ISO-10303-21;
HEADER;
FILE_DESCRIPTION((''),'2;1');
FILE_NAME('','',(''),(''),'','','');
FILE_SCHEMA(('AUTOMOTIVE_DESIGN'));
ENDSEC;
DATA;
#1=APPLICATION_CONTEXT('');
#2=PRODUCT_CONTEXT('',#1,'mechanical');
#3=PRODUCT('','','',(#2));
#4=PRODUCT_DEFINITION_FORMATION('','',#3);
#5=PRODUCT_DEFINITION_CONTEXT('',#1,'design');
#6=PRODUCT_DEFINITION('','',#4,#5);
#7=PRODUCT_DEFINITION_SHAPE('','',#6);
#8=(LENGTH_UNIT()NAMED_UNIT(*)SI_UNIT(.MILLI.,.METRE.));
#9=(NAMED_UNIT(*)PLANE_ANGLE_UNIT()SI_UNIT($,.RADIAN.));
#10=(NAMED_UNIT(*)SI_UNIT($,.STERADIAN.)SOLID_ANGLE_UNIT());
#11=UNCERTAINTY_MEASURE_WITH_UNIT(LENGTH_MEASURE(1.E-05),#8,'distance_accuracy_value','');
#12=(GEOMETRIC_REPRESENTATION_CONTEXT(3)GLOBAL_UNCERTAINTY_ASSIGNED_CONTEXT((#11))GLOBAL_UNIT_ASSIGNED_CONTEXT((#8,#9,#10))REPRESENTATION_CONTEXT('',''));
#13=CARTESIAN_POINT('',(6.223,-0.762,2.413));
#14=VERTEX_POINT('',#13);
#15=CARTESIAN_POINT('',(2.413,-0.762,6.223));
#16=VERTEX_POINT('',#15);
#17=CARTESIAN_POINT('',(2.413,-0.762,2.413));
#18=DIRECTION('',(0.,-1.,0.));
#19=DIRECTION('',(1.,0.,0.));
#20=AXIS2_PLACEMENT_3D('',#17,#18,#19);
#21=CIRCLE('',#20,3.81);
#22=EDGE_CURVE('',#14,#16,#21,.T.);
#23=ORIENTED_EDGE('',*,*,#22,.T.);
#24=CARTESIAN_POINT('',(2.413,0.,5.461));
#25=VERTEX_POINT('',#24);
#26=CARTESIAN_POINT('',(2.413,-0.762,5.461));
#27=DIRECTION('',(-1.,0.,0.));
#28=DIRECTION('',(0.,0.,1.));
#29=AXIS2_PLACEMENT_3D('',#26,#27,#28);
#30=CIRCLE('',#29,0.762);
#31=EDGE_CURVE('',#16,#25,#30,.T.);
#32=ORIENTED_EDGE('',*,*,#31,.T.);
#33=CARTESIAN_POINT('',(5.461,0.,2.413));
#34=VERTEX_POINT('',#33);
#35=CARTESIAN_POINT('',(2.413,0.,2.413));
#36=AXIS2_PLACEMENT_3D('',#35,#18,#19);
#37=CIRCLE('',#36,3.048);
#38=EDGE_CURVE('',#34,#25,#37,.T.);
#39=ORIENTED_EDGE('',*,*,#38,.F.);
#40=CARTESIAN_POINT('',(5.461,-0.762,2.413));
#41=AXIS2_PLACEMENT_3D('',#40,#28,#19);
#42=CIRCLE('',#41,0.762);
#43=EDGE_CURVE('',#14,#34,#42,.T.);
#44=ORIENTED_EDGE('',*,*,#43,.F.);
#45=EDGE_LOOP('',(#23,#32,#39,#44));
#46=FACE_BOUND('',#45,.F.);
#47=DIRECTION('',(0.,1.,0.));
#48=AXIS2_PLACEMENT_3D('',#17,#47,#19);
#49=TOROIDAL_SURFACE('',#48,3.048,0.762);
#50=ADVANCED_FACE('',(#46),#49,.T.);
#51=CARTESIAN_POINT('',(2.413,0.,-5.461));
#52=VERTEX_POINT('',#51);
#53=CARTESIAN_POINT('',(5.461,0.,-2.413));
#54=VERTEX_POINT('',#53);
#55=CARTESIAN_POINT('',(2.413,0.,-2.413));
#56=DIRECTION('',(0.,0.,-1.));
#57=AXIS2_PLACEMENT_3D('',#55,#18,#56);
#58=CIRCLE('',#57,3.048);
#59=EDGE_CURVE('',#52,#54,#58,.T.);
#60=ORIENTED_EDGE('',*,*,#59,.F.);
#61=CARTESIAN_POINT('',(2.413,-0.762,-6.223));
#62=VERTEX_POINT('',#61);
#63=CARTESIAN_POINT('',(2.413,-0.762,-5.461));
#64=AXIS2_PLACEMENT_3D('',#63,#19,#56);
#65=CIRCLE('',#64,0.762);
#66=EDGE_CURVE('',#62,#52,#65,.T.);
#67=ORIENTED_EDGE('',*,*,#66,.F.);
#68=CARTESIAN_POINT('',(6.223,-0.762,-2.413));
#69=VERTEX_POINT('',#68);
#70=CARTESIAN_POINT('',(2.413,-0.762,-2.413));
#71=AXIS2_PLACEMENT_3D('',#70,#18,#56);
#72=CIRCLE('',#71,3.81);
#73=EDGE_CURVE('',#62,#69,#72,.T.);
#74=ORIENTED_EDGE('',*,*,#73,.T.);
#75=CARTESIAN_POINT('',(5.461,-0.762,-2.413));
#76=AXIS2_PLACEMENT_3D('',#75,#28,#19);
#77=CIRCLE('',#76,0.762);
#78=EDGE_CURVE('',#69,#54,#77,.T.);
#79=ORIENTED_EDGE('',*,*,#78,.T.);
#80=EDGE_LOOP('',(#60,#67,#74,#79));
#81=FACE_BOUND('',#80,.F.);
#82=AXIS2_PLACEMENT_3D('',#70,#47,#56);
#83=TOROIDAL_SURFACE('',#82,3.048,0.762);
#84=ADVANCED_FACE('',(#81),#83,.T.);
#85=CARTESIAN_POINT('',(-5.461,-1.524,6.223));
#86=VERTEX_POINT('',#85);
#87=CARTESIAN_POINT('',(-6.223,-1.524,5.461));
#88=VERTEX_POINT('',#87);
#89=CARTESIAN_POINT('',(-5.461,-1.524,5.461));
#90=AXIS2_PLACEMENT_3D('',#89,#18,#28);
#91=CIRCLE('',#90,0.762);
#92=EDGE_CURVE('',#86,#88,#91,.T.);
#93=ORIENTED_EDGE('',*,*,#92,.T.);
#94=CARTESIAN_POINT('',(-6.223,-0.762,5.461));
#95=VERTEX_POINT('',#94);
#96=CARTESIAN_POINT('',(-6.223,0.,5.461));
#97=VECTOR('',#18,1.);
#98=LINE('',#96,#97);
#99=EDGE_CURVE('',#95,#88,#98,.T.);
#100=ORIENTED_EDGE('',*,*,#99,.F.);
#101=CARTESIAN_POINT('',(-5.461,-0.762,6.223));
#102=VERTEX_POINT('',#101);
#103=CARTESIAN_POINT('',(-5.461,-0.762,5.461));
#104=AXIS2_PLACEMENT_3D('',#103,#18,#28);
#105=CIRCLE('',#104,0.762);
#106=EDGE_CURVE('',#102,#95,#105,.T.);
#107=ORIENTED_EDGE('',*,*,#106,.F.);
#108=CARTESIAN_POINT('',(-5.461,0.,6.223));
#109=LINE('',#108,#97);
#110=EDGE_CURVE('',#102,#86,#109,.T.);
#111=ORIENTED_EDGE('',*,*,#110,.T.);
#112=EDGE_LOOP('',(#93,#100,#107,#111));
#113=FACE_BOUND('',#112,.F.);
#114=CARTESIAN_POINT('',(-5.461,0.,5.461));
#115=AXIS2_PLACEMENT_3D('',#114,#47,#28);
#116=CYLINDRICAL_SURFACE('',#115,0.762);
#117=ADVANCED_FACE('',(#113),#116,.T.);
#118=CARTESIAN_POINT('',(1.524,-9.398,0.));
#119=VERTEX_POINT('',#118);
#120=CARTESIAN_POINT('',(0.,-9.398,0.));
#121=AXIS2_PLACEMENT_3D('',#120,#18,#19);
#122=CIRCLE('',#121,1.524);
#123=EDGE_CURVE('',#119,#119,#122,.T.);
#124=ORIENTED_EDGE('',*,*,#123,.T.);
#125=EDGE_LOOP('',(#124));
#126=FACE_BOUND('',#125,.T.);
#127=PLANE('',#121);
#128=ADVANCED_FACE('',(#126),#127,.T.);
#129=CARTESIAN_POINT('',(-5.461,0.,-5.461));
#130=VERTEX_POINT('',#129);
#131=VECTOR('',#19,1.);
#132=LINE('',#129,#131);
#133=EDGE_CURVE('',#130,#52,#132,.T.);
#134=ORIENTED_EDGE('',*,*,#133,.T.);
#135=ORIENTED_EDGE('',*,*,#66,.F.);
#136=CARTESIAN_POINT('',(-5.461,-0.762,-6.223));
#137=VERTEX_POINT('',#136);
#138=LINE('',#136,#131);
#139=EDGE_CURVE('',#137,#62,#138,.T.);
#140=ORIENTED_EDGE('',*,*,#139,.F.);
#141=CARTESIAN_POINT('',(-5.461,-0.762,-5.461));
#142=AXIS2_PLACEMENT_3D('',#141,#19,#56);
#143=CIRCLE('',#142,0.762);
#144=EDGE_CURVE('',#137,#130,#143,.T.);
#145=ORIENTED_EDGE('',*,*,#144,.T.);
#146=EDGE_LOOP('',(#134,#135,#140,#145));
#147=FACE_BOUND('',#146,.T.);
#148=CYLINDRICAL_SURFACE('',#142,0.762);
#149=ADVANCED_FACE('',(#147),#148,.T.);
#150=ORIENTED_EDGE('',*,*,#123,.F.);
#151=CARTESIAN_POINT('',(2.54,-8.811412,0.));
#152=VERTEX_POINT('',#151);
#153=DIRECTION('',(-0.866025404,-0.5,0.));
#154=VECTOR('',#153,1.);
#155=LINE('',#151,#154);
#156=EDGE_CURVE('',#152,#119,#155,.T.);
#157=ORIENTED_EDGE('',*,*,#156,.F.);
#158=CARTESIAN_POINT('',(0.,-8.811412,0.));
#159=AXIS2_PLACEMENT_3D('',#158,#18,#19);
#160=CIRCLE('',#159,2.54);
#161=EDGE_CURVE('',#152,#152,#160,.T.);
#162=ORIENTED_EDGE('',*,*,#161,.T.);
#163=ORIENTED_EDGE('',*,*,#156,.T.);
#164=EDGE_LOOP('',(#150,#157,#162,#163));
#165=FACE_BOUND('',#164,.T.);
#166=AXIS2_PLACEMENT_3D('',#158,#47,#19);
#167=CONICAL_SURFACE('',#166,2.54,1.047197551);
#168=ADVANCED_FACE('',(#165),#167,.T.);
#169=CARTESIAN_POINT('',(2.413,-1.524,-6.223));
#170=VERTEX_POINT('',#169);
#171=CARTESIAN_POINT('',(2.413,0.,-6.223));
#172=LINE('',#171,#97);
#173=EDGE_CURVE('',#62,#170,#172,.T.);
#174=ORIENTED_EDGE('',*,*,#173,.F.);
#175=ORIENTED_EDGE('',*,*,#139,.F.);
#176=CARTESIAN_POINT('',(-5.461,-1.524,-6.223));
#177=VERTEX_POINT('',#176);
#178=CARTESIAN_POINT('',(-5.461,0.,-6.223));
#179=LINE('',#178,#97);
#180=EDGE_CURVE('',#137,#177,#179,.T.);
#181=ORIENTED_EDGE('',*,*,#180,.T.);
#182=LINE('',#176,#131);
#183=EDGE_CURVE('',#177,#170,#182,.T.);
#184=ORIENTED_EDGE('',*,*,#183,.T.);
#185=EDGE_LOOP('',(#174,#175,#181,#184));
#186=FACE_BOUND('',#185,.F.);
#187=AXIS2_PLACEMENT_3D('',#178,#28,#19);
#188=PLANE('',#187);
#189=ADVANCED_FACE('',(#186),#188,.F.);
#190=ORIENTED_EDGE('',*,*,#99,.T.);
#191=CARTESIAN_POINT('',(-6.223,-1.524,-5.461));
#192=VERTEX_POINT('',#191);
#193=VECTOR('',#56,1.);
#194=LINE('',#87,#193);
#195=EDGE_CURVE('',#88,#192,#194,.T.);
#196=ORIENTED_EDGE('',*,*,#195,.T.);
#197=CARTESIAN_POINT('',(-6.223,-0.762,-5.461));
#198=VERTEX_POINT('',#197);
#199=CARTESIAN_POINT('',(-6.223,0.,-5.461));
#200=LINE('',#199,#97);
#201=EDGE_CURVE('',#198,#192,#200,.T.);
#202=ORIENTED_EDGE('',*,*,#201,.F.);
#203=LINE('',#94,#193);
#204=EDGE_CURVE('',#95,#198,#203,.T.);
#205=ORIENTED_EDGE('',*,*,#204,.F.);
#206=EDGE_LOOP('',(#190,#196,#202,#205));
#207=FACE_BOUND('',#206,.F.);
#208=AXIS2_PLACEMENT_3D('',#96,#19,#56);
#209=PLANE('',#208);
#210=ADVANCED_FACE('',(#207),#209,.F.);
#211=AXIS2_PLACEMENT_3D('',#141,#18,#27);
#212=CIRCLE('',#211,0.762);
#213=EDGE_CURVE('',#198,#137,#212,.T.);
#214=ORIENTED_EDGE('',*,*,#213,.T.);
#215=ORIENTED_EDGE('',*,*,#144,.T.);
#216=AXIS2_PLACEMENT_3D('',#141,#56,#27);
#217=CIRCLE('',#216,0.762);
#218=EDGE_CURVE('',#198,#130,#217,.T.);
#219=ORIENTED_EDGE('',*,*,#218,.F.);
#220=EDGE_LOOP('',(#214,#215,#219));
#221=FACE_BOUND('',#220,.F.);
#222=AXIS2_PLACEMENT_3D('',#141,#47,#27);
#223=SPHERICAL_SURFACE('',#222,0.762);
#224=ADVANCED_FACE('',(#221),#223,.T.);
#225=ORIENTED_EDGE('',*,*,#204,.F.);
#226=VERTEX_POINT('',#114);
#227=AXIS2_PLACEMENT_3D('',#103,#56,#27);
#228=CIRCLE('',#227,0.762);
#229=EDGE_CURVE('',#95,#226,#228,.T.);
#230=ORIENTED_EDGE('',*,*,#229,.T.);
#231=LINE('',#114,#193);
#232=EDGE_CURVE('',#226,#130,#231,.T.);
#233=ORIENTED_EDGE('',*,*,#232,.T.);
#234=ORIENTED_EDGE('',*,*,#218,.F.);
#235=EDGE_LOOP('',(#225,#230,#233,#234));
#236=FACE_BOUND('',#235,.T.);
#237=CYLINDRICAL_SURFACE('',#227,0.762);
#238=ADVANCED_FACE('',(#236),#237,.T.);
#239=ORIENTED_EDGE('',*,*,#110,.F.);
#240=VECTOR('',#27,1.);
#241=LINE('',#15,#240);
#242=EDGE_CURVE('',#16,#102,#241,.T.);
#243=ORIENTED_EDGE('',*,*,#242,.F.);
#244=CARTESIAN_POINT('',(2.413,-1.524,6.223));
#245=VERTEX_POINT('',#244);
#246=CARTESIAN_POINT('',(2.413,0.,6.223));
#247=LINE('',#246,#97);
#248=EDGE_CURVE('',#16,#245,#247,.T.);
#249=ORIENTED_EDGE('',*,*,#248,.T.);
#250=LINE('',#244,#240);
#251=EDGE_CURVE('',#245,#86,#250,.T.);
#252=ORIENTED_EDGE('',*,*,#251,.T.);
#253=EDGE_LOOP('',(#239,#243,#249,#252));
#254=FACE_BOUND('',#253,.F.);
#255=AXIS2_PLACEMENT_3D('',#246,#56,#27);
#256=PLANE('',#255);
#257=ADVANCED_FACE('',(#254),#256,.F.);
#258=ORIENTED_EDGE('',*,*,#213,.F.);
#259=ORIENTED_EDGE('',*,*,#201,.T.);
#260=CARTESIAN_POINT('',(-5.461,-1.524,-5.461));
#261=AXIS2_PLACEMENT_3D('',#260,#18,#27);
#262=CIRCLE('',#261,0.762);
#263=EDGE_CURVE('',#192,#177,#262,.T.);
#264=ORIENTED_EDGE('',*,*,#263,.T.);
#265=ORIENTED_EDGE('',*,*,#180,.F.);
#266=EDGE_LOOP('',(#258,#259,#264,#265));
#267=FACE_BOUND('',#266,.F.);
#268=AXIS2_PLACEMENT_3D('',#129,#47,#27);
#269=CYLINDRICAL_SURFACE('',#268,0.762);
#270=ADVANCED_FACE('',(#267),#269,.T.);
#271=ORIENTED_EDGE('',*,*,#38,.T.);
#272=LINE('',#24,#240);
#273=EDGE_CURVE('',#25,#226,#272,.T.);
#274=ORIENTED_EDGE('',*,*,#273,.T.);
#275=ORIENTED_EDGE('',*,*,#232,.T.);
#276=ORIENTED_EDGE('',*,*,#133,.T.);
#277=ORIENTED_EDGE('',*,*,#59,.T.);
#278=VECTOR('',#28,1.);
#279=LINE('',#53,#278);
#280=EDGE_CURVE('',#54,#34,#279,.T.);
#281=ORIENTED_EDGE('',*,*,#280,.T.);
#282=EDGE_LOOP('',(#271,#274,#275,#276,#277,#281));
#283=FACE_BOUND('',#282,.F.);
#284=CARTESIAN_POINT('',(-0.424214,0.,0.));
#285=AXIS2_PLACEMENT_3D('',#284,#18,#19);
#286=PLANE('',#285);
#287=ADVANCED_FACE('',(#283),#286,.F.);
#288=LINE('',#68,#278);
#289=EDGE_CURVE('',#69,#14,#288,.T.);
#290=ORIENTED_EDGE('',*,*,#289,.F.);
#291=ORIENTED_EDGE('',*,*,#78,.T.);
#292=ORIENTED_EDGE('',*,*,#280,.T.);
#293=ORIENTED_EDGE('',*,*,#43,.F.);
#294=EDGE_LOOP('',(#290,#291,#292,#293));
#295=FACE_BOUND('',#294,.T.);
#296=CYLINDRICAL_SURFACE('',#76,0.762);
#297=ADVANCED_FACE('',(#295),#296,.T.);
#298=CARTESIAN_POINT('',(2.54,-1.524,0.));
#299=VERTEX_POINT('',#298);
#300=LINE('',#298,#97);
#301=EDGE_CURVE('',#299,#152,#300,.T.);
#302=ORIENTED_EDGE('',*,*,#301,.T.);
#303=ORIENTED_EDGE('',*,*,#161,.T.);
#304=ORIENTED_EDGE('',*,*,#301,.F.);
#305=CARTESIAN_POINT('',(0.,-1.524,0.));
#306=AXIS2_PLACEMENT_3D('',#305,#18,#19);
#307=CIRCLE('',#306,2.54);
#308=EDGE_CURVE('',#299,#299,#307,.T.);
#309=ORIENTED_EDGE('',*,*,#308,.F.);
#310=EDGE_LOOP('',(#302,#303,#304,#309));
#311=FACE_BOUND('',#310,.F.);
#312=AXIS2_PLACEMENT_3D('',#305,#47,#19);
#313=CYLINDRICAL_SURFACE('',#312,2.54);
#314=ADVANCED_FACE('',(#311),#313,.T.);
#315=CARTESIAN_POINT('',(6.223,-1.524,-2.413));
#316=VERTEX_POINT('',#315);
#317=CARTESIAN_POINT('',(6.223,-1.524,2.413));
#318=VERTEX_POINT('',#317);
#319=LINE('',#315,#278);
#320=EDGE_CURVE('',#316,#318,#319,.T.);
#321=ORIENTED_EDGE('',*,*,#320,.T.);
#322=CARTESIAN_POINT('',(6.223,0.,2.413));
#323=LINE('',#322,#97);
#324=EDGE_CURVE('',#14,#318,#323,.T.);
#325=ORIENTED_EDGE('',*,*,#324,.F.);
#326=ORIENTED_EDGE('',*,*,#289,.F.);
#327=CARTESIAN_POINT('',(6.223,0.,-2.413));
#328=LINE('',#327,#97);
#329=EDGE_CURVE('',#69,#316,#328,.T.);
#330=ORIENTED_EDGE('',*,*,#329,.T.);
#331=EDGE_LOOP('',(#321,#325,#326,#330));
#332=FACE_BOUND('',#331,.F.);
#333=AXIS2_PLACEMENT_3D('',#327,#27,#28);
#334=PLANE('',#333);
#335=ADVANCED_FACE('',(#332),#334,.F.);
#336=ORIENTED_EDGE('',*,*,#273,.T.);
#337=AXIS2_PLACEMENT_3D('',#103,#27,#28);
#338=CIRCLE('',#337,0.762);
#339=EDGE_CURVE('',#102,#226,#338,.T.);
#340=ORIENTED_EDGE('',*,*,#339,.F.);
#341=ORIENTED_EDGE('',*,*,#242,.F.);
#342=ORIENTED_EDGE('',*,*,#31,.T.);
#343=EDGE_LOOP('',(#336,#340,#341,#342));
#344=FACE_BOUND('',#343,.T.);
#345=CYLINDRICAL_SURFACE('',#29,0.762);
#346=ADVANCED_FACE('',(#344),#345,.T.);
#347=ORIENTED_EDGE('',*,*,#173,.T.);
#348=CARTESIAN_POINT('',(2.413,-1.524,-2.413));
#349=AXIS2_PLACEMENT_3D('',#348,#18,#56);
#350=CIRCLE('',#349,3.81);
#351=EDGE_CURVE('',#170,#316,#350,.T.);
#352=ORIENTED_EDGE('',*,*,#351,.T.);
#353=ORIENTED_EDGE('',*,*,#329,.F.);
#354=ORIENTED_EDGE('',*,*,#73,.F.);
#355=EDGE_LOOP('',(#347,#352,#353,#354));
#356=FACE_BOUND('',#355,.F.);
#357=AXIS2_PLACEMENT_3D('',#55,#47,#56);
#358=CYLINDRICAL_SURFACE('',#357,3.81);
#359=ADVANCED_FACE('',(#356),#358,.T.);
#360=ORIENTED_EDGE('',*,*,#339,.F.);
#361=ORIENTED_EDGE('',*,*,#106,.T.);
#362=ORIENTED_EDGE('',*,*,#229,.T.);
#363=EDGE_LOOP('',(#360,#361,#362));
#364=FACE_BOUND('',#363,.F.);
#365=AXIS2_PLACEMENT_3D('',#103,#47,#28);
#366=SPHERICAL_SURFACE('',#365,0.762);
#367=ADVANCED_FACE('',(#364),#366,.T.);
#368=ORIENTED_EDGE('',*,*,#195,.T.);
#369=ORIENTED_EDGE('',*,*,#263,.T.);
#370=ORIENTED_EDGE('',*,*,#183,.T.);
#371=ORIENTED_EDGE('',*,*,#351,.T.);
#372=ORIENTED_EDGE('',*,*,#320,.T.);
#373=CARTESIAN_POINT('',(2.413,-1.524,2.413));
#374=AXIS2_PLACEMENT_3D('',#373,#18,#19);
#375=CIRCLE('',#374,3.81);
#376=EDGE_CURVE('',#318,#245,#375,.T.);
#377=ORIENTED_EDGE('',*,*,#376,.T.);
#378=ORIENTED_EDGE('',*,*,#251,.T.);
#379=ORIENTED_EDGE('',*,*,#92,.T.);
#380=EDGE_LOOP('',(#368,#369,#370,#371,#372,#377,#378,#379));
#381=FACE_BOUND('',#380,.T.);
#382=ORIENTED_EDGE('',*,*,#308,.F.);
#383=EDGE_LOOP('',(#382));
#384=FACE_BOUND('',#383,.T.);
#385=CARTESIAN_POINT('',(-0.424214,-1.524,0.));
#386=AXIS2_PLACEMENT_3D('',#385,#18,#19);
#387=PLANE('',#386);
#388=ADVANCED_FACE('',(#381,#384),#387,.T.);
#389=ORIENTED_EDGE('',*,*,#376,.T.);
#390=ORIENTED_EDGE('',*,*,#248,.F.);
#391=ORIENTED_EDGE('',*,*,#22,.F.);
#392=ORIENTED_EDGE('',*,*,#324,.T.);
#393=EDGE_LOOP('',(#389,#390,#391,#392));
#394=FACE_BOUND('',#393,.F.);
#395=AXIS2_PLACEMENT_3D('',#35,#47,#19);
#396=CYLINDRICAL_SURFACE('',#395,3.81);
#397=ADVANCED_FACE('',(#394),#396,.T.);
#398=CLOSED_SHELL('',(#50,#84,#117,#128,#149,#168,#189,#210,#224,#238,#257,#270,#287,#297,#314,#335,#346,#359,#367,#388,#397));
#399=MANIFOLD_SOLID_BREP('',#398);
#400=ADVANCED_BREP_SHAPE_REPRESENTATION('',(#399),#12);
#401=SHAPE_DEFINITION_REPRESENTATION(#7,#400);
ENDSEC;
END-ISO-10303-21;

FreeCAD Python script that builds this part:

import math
import FreeCAD as App
import Part
import Sketcher

V = App.Vector
Q = App.Units.Quantity


def edges_at(feature, points):
    """Names of the edges that pass closest to the given points."""
    edges = feature.Shape.Edges
    near = lambda p: min(range(len(edges)), key=lambda i: edges[i].distToShape(Part.Vertex(*p))[0])
    return sorted({f"Edge{near(p) + 1}" for p in points})

doc = App.newDocument("Part")
body = doc.addObject("PartDesign::Body", "Body")

sketch1 = body.newObject("Sketcher::SketchObject", "Sketch")
sketch1.AttachmentSupport = (doc.getObject("XZ_Plane"), [""])
sketch1.MapMode = "FlatFace"
sketch1.addGeometry([
    Part.ArcOfCircle(Part.Circle(V(2.4, 2.4, 0), V(0, 0, 1), 3.8), math.radians(0), math.radians(90)),
    Part.LineSegment(V(2.4, 6.2, 0), V(-5.5, 6.2, 0)),
    Part.ArcOfCircle(Part.Circle(V(-5.5, 5.5, 0), V(0, 0, 1), 0.8), math.radians(90), math.radians(180)),
    Part.LineSegment(V(-6.2, 5.5, 0), V(-6.2, -5.5, 0)),
    Part.ArcOfCircle(Part.Circle(V(-5.5, -5.5, 0), V(0, 0, 1), 0.8), math.radians(180), math.radians(270)),
    Part.LineSegment(V(-5.5, -6.2, 0), V(2.4, -6.2, 0)),
    Part.ArcOfCircle(Part.Circle(V(2.4, -2.4, 0), V(0, 0, 1), 3.8), math.radians(-90), math.radians(0)),
    Part.LineSegment(V(6.2, -2.4, 0), V(6.2, 2.4, 0)),
], False)
sketch1.addConstraint([
    Sketcher.Constraint("Tangent", 0, 2, 1, 1),
    Sketcher.Constraint("Tangent", 1, 2, 2, 1),
    Sketcher.Constraint("Tangent", 2, 2, 3, 1),
    Sketcher.Constraint("Tangent", 3, 2, 4, 1),
    Sketcher.Constraint("Tangent", 4, 2, 5, 1),
    Sketcher.Constraint("Tangent", 5, 2, 6, 1),
    Sketcher.Constraint("Tangent", 6, 2, 7, 1),
    Sketcher.Constraint("Tangent", 7, 2, 0, 1),
    Sketcher.Constraint("Horizontal", 1),
    Sketcher.Constraint("Vertical", 3),
    Sketcher.Constraint("Horizontal", 5),
    Sketcher.Constraint("Vertical", 7),
    Sketcher.Constraint("Equal", 2, 4),
    Sketcher.Constraint("Equal", 0, 6),
    Sketcher.Constraint("Radius", 0, Q("0.15 in")),
    Sketcher.Constraint("Radius", 2, Q("0.03 in")),
    Sketcher.Constraint("DistanceX", 1, 2, 1, 1, Q("0.31 in")),
    Sketcher.Constraint("DistanceY", 3, 2, 3, 1, Q("0.43 in")),
    Sketcher.Constraint("DistanceX", -1, 1, 0, 3, Q("0.095 in")),
    Sketcher.Constraint("DistanceY", -1, 1, 0, 3, Q("0.095 in")),
])
pad1 = body.newObject("PartDesign::Pad", "Pad")
pad1.Profile = sketch1
pad1.Length = Q("0.06 in")
doc.recompute()

fillet = body.newObject("PartDesign::Fillet", "Fillet")
fillet.Base = (pad1, edges_at(pad1, [(-1.524, 0, -6.223)]))
fillet.Radius = Q("0.03 in")

sketch2 = body.newObject("Sketcher::SketchObject", "Sketch001")
sketch2.AttachmentSupport = (doc.getObject("XZ_Plane"), [""])
sketch2.MapMode = "FlatFace"
sketch2.AttachmentOffset = App.Placement(V(0, 0, 0.06 * 25.4), App.Rotation())
sketch2.addGeometry(Part.Circle(V(0, 0, 0), V(0, 0, 1), 2.5), False)
sketch2.addConstraint([
    Sketcher.Constraint("Coincident", 0, 3, -1, 1),
    Sketcher.Constraint("Diameter", 0, Q("0.2 in")),
])
pad2 = body.newObject("PartDesign::Pad", "Pad001")
pad2.Profile = sketch2
pad2.Length = Q("0.31 in")
doc.recompute()

chamfer = body.newObject("PartDesign::Chamfer", "Chamfer")
chamfer.Base = (pad2, edges_at(pad2, [(-2.54, -9.398, 0)]))
chamfer.ChamferType = "Two distances"
chamfer.Size = 0.586588
chamfer.Size2 = Q("0.04 in")

doc.recompute()
